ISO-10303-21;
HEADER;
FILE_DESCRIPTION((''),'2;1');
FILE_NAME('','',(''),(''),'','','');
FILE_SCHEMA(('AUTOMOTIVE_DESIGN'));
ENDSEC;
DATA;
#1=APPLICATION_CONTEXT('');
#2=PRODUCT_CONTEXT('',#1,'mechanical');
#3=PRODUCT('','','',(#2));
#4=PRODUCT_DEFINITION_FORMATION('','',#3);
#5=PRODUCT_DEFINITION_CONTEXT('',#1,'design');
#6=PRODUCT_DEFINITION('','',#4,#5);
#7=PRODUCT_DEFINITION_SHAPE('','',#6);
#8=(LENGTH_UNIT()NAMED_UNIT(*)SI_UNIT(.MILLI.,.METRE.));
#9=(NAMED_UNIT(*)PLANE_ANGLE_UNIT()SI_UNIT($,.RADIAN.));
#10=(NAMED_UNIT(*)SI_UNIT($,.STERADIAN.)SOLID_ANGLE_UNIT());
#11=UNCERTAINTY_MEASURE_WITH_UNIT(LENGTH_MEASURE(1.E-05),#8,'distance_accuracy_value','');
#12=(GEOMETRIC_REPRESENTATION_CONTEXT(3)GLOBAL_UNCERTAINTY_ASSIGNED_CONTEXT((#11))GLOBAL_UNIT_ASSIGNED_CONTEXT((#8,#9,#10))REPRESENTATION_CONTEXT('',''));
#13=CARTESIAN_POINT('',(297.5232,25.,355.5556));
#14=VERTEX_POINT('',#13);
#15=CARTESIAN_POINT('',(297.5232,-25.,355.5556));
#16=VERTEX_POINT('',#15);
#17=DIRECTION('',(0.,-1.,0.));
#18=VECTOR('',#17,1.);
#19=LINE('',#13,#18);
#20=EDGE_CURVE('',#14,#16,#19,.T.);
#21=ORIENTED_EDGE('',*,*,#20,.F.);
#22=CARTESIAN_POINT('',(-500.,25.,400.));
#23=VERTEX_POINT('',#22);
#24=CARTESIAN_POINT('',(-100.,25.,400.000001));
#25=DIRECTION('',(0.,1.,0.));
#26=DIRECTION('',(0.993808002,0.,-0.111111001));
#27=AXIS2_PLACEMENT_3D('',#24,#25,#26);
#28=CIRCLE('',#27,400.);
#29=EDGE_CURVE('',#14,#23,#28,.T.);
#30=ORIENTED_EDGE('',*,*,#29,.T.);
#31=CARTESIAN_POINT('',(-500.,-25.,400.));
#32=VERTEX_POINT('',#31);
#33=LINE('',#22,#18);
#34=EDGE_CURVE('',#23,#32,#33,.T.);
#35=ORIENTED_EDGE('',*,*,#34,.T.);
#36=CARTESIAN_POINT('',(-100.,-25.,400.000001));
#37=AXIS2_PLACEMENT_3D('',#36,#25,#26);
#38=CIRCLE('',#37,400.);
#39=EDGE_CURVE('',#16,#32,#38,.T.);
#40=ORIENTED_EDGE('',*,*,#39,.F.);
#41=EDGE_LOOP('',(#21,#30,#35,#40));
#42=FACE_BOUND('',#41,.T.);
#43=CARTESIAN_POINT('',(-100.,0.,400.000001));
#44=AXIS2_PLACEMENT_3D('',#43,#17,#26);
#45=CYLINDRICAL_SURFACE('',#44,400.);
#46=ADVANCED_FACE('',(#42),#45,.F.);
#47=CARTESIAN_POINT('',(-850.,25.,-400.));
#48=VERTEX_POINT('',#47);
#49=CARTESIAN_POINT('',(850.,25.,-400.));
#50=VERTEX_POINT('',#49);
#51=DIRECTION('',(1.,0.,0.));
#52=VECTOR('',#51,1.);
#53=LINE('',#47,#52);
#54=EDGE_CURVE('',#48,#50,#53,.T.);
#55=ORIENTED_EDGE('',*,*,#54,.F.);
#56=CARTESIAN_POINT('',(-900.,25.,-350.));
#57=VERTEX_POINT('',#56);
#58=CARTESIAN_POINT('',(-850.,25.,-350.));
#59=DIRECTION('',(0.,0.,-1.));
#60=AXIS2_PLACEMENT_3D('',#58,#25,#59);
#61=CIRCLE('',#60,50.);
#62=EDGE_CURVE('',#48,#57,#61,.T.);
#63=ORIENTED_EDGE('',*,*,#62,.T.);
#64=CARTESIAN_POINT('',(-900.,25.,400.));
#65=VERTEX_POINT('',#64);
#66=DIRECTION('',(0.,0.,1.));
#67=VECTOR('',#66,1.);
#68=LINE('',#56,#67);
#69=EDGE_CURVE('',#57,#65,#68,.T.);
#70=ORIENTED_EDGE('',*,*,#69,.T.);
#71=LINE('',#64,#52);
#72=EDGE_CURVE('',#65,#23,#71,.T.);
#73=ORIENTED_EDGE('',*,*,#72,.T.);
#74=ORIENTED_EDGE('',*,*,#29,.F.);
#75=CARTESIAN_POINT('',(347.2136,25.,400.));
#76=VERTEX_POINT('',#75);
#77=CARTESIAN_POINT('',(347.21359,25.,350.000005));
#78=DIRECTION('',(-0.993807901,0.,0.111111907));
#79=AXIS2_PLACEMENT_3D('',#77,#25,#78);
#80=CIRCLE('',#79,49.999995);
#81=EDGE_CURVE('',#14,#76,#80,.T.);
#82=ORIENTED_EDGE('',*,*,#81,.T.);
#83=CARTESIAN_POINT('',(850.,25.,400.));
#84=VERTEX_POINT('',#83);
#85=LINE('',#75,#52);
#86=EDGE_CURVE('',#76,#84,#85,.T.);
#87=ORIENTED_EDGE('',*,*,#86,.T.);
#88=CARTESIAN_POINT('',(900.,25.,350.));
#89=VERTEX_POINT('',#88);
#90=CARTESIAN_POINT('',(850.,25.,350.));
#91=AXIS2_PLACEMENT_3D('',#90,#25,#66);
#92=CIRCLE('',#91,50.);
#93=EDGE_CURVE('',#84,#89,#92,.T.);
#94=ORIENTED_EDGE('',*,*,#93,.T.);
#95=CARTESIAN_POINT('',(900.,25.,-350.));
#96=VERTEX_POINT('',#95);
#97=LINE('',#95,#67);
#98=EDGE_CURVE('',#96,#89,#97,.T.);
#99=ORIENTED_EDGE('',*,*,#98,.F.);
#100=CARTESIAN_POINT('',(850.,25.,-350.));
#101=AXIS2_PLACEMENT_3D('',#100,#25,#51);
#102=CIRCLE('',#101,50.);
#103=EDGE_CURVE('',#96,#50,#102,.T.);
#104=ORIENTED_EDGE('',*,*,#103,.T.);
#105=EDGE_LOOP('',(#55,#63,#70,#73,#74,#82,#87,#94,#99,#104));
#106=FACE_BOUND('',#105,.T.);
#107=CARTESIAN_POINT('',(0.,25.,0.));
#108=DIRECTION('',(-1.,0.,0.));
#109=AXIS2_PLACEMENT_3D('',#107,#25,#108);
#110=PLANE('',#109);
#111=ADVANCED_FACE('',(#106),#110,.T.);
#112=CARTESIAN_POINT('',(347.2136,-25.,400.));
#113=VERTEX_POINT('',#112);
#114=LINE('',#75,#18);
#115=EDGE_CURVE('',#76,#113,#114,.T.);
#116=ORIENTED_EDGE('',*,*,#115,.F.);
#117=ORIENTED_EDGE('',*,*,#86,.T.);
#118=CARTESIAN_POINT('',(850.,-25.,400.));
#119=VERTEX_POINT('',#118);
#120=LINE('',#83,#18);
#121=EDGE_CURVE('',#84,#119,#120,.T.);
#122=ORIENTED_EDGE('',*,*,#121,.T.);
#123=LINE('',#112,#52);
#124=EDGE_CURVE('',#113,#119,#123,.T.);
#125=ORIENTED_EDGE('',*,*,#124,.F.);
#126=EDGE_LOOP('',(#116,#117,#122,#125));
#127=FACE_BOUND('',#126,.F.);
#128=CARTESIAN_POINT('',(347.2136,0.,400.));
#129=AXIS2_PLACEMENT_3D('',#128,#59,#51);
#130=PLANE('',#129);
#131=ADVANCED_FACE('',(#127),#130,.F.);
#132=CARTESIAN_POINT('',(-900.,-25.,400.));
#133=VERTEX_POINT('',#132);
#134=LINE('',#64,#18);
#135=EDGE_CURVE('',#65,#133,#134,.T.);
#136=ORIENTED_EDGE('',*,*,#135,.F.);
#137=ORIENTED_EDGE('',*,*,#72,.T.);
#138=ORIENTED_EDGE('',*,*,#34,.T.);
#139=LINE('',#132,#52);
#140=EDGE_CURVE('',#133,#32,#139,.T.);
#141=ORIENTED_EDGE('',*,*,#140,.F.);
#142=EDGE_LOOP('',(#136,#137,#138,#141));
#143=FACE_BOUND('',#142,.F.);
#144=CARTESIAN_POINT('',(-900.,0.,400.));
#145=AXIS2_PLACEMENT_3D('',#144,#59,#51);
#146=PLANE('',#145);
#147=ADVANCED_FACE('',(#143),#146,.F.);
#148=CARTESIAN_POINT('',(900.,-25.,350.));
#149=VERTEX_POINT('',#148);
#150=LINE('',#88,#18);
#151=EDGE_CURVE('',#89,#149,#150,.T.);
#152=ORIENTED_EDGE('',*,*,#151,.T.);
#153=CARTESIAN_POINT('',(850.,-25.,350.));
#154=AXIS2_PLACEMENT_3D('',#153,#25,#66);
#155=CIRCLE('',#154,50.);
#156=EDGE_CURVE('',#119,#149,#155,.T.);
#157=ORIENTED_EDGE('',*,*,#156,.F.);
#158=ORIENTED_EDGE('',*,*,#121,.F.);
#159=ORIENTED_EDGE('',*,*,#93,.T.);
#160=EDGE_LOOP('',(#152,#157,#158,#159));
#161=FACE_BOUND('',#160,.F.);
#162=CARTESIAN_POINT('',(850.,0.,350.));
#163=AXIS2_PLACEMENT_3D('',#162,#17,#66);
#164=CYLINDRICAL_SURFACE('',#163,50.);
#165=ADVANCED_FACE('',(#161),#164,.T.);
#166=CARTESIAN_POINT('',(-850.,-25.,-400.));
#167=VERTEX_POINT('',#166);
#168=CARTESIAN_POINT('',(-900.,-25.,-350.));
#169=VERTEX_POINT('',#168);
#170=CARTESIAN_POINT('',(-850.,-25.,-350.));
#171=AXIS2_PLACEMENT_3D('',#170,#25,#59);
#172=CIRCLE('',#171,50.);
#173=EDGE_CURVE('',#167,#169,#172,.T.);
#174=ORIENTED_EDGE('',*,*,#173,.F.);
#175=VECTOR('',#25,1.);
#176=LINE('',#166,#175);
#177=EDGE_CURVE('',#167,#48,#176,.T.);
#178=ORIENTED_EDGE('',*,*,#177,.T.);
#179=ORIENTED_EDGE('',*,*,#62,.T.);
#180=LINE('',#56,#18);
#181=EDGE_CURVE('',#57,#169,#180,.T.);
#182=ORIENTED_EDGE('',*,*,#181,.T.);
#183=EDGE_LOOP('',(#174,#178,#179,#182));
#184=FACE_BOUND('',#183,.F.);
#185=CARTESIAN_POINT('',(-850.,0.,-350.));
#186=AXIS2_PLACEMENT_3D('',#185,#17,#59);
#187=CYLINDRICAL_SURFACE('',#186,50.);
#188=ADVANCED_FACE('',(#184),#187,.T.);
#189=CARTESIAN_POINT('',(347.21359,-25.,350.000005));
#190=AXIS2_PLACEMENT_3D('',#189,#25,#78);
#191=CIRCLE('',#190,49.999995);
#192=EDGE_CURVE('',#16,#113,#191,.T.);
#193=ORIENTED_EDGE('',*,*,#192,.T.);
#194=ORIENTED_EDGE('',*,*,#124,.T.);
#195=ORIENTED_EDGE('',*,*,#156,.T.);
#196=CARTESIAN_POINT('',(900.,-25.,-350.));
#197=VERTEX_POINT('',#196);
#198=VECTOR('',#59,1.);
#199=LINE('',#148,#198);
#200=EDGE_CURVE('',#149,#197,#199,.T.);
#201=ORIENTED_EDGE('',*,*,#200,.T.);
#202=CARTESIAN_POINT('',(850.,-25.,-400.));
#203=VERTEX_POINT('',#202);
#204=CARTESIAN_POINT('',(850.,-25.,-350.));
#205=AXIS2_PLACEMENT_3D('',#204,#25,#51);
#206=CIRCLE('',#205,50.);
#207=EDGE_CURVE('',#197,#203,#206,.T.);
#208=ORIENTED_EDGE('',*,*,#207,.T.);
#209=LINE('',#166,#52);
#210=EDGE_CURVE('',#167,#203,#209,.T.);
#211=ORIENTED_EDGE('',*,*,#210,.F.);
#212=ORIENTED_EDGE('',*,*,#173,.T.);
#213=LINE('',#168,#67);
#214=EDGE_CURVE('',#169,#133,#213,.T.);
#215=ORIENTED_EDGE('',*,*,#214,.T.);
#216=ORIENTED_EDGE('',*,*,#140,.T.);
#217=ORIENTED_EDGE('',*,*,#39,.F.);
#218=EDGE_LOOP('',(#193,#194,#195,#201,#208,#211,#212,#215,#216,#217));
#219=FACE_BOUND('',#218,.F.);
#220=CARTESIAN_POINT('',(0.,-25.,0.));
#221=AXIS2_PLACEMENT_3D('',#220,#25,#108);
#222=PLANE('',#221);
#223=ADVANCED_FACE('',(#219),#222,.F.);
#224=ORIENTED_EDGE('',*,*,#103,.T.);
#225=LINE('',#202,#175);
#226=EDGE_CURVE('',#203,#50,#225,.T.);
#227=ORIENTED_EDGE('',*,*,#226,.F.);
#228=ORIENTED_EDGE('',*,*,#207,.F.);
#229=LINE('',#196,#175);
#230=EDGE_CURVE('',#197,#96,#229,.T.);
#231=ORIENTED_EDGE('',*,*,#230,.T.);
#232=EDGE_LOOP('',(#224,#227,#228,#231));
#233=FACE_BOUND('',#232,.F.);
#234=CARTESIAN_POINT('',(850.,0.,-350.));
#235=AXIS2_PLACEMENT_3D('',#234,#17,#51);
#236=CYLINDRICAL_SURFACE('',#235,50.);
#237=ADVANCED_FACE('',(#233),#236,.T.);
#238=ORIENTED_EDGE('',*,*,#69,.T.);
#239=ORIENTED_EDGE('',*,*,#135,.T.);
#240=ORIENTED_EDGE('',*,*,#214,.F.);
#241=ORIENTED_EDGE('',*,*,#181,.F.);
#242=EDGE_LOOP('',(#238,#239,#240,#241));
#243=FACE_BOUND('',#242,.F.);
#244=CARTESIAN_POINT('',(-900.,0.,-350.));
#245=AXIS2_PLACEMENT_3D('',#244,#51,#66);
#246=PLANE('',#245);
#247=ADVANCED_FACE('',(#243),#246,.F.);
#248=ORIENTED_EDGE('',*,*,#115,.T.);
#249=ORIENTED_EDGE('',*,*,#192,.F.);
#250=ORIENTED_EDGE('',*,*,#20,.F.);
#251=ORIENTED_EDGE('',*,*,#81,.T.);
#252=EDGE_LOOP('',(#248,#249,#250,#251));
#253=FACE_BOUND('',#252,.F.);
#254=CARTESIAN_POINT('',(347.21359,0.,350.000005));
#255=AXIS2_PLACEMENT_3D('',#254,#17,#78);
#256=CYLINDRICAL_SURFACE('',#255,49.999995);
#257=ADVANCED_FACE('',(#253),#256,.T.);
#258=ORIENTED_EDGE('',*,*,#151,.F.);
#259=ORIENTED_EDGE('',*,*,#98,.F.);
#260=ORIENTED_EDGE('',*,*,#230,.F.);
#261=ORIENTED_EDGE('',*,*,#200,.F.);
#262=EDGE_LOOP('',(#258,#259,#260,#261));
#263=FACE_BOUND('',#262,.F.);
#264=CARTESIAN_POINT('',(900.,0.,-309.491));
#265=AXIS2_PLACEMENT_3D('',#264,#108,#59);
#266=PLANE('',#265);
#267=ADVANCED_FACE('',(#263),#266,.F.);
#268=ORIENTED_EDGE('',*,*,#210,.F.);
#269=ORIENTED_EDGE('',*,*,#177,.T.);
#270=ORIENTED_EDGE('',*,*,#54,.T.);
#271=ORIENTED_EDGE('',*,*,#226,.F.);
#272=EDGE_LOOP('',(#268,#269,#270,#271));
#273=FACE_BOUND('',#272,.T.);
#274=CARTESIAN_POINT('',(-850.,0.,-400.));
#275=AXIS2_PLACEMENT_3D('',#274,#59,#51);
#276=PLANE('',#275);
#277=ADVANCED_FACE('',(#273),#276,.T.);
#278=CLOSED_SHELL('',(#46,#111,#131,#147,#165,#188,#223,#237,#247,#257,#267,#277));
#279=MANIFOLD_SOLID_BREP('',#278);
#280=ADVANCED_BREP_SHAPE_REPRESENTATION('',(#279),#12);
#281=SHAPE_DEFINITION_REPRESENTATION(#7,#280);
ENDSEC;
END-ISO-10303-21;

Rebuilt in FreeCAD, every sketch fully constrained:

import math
import FreeCAD as App
import Part
import Sketcher

doc = App.newDocument("Part")
body = doc.addObject("PartDesign::Body", "Body")

# Sketch on XZ plane
sketch1 = body.newObject("Sketcher::SketchObject", "Sketch")
sketch1.AttachmentSupport = (doc.getObject("XZ_Plane"), [""])
sketch1.MapMode = "FlatFace"
sketch1.addGeometry([
    Part.LineSegment(App.Vector(900, 350, 0), App.Vector(900, -350, 0)),  # 0
    Part.ArcOfCircle(Part.Circle(App.Vector(850, -350, 0), App.Vector(0, 0, 1), 50), math.radians(-90), math.radians(0)),  # 1
    Part.LineSegment(App.Vector(850, -400, 0), App.Vector(-850, -400, 0)),  # 2
    Part.ArcOfCircle(Part.Circle(App.Vector(-850, -350, 0), App.Vector(0, 0, 1), 50), math.radians(180), math.radians(270)),  # 3
    Part.LineSegment(App.Vector(-900, -350, 0), App.Vector(-900, 400, 0)),  # 4
    Part.LineSegment(App.Vector(-900, 400, 0), App.Vector(-500, 400, 0)),  # 5
    Part.ArcOfCircle(Part.Circle(App.Vector(-100, 400, 0), App.Vector(0, 0, 1), 400), math.radians(180), math.radians(354)),  # 6
    Part.ArcOfCircle(Part.Circle(App.Vector(347, 350, 0), App.Vector(0, 0, 1), 50), math.radians(90), math.radians(174)),  # 7
    Part.LineSegment(App.Vector(347, 400, 0), App.Vector(850, 400, 0)),  # 8
    Part.ArcOfCircle(Part.Circle(App.Vector(850, 350, 0), App.Vector(0, 0, 1), 50), math.radians(0), math.radians(90)),  # 9
], False)
sketch1.addConstraint([
    Sketcher.Constraint("Tangent", 0, 2, 1, 2),
    Sketcher.Constraint("Tangent", 1, 1, 2, 1),
    Sketcher.Constraint("Tangent", 2, 2, 3, 2),
    Sketcher.Constraint("Tangent", 3, 1, 4, 1),
    Sketcher.Constraint("Coincident", 4, 2, 5, 1),
    Sketcher.Constraint("Coincident", 5, 2, 6, 1),
    Sketcher.Constraint("Tangent", 6, 2, 7, 2),
    Sketcher.Constraint("Tangent", 7, 1, 8, 1),
    Sketcher.Constraint("Tangent", 8, 2, 9, 2),
    Sketcher.Constraint("Tangent", 9, 1, 0, 1),
    Sketcher.Constraint("Vertical", 0),
    Sketcher.Constraint("Horizontal", 2),
    Sketcher.Constraint("Vertical", 4),
    Sketcher.Constraint("Horizontal", 5),
    Sketcher.Constraint("Horizontal", 8),
    Sketcher.Constraint("Equal", 1, 3),
    Sketcher.Constraint("Equal", 3, 7),
    Sketcher.Constraint("Equal", 7, 9),
    Sketcher.Constraint("Symmetric", 3, 3, 9, 3, -1, 1),
    Sketcher.Constraint("Horizontal", 6, 3, 4, 2),
    Sketcher.Constraint("Horizontal", 5, 2, 7, 1),
    Sketcher.Constraint("Radius", 1, 50.0),
    Sketcher.Constraint("Radius", 6, 400.0),
    Sketcher.Constraint("DistanceX", 5, 1, 5, 2, 400.0),
    Sketcher.Constraint("DistanceY", -1, 1, 6, 3, 400.0),
    Sketcher.Constraint("DistanceX", 2, 2, 2, 1, 1700.0),
])
pad1 = body.newObject("PartDesign::Pad", "Pad")
pad1.Profile = sketch1
pad1.Length = 50
pad1.Midplane = True

doc.recompute()
